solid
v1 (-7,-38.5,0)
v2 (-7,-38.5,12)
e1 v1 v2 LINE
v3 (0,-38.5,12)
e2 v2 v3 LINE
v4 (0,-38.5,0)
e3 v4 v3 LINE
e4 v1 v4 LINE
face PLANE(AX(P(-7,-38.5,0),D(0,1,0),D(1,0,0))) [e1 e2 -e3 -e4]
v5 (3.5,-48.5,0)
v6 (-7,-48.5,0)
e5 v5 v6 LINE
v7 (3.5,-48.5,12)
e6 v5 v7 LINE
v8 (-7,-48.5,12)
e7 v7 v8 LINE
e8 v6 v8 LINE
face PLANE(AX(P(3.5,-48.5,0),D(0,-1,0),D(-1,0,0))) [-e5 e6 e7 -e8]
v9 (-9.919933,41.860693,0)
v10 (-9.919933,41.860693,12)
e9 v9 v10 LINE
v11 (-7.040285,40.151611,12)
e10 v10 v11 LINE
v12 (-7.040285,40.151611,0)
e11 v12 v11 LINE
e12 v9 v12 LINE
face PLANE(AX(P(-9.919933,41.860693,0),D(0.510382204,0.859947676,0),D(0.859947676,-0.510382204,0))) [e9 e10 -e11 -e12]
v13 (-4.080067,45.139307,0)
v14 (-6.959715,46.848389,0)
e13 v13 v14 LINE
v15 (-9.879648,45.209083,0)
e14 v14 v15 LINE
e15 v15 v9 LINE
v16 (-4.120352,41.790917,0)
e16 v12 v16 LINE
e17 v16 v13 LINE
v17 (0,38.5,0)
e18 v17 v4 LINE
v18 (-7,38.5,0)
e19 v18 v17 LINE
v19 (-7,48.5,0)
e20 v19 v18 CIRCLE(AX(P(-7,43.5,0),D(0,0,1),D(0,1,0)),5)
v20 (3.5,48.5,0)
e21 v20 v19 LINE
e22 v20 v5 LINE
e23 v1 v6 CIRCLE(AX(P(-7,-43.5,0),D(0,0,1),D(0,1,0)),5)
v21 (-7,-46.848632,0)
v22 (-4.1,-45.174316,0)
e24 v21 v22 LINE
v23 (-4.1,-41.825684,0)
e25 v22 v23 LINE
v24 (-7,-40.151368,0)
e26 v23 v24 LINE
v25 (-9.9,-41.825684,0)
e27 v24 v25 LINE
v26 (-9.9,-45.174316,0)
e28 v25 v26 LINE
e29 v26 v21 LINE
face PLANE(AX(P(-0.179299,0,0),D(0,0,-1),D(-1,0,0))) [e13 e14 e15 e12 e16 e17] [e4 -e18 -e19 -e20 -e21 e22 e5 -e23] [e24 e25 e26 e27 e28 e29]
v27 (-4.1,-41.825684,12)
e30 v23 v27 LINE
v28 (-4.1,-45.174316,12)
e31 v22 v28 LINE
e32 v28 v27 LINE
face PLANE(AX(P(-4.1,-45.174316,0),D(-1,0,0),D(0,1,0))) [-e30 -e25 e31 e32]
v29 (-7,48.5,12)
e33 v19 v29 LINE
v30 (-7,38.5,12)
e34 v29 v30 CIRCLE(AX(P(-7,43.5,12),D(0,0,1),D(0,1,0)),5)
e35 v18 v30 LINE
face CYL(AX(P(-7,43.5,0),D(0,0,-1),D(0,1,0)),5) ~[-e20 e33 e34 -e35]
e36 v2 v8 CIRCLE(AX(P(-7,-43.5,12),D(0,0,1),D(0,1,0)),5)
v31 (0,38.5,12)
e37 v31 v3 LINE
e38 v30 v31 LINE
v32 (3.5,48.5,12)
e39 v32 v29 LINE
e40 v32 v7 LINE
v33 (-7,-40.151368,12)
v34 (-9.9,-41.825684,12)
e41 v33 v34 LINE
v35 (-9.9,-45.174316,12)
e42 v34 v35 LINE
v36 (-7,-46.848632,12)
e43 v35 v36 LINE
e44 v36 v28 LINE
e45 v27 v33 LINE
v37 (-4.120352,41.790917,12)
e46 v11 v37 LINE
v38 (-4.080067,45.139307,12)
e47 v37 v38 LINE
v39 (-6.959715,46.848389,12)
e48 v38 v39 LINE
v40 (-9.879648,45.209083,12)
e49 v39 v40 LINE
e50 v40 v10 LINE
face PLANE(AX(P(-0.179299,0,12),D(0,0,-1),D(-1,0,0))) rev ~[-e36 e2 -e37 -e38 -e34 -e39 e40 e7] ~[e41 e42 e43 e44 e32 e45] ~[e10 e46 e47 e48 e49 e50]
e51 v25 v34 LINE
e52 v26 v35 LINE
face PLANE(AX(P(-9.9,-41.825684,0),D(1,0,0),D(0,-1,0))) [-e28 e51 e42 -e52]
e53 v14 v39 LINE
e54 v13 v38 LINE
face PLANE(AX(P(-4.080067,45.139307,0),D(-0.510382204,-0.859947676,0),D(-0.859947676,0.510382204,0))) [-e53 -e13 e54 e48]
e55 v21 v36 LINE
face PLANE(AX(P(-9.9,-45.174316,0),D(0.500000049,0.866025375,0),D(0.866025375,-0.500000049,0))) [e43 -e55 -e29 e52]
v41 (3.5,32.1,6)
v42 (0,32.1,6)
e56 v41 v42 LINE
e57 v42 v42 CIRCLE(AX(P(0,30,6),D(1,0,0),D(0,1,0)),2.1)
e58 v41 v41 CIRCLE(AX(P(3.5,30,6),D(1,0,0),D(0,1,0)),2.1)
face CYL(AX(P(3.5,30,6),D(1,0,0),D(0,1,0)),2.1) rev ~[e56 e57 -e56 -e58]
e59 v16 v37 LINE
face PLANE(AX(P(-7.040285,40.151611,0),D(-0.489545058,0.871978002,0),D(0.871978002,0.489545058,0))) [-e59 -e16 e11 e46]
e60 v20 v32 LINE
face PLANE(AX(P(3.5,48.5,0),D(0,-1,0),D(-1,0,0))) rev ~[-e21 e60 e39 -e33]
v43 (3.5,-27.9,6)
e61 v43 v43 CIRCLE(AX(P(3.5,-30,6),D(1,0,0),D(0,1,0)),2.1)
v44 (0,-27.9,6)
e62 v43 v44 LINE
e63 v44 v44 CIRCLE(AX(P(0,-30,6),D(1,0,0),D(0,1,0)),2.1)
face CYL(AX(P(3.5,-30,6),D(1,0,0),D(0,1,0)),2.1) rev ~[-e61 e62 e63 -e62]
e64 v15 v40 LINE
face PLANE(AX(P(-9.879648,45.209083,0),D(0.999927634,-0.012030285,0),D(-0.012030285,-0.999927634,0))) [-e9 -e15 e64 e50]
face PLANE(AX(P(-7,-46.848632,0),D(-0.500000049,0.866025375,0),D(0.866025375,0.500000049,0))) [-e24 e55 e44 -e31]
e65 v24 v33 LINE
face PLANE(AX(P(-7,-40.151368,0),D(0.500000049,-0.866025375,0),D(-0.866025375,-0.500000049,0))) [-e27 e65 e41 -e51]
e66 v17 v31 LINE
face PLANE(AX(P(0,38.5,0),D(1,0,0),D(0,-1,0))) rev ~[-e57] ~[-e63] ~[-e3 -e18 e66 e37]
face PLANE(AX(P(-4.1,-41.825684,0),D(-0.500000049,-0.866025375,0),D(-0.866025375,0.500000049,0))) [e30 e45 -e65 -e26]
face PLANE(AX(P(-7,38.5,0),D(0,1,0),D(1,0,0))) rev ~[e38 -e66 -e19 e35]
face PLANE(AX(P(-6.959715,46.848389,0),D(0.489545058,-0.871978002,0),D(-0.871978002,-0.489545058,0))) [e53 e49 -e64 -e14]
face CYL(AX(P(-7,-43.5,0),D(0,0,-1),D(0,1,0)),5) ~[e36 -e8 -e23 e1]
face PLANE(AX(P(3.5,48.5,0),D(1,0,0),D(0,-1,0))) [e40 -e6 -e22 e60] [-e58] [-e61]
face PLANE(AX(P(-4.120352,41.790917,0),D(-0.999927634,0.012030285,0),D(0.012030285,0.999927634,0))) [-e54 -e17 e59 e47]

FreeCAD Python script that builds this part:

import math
import FreeCAD as App
import Part
import Sketcher
from FreeCAD import Vector
Q = App.Units.Quantity


def add_polygon(sketch, points):
    """Adds a closed chain of lines whose ends are joined by coincident constraints."""
    first, n = sketch.GeometryCount, len(points)
    for a, b in zip(points, points[1:] + points[:1]):
        sketch.addGeometry(Part.LineSegment(App.Vector(*a, 0), App.Vector(*b, 0)), False)
    for i in range(n):
        sketch.addConstraint(Sketcher.Constraint("Coincident", first + i, 2, first + (i + 1) % n, 1))

doc = App.newDocument("Part")
body = doc.addObject("PartDesign::Body", "Body")

# Sketch on XY plane
sketch1 = doc.addObject("Sketcher::SketchObject", "Sketch")
body.addObject(sketch1)
sketch1.AttachmentSupport = (doc.XY_Plane, [""])
sketch1.MapMode = "FlatFace"
sketch1.addGeometry(Part.LineSegment(Vector(3.5, 48.5, 0), Vector(-7, 48.5, 0)), False)  # 0
sketch1.addGeometry(Part.ArcOfCircle(Part.Circle(Vector(-7, 43.5, 0), Vector(0, 0, 1), 5), math.radians(90), math.radians(270)), False)  # 1
sketch1.addGeometry(Part.LineSegment(Vector(-7, 38.5, 0), Vector(0, 38.5, 0)), False)  # 2
sketch1.addGeometry(Part.LineSegment(Vector(0, 38.5, 0), Vector(0, -38.5, 0)), False)  # 3
sketch1.addGeometry(Part.LineSegment(Vector(0, -38.5, 0), Vector(-7, -38.5, 0)), False)  # 4
sketch1.addGeometry(Part.ArcOfCircle(Part.Circle(Vector(-7, -43.5, 0), Vector(0, 0, 1), 5), math.radians(90), math.radians(270)), False)  # 5
sketch1.addGeometry(Part.LineSegment(Vector(-7, -48.5, 0), Vector(3.5, -48.5, 0)), False)  # 6
sketch1.addGeometry(Part.LineSegment(Vector(3.5, -48.5, 0), Vector(3.5, 48.5, 0)), False)  # 7
add_polygon(sketch1, [(-4.1, -45.174316), (-7, -46.848632), (-9.9, -45.174316), (-9.9, -41.825684), (-7, -40.151368), (-4.1, -41.825684)])  # lines 8-13
add_polygon(sketch1, [(-4.120352, 41.790917), (-7.040285, 40.151611), (-9.919933, 41.860693), (-9.879648, 45.209083), (-6.959715, 46.848389), (-4.080067, 45.139307)])  # lines 14-19
sketch1.addConstraint([
    Sketcher.Constraint("Coincident", 0, 2, 1, 1),
    Sketcher.Constraint("Coincident", 1, 2, 2, 1),
    Sketcher.Constraint("Coincident", 2, 2, 3, 1),
    Sketcher.Constraint("Coincident", 3, 2, 4, 1),
    Sketcher.Constraint("Coincident", 4, 2, 5, 1),
    Sketcher.Constraint("Coincident", 5, 2, 6, 1),
    Sketcher.Constraint("Coincident", 6, 2, 7, 1),
    Sketcher.Constraint("Coincident", 7, 2, 0, 1),
    Sketcher.Constraint("Horizontal", 0),
    Sketcher.Constraint("Horizontal", 2),
    Sketcher.Constraint("Vertical", 3),
    Sketcher.Constraint("Horizontal", 4),
    Sketcher.Constraint("Horizontal", 6),
    Sketcher.Constraint("Vertical", 7),
    Sketcher.Constraint("Vertical", 10),
    Sketcher.Constraint("Vertical", 13),
    Sketcher.Constraint("PointOnObject", 2, 2, -2),
    Sketcher.Constraint("Radius", 1, Q("5 mm")),
    Sketcher.Constraint("Radius", 5, Q("5 mm")),
    Sketcher.Constraint("DistanceX", 2, 1, 2, 2, Q("7 mm")),
    Sketcher.Constraint("DistanceX", 4, 2, 4, 1, Q("7 mm")),
    Sketcher.Constraint("DistanceY", 3, 2, 3, 1, Q("77 mm")),
    Sketcher.Constraint("DistanceX", 0, 2, 0, 1, Q("10.5 mm")),
    Sketcher.Constraint("DistanceX", 6, 1, 6, 2, Q("10.5 mm")),
    Sketcher.Constraint("DistanceX", 1, 3, -1, 1, Q("7 mm")),
    Sketcher.Constraint("DistanceX", 5, 3, -1, 1, Q("7 mm")),
    Sketcher.Constraint("DistanceX", 0, 2, -1, 1, Q("7 mm")),
    Sketcher.Constraint("DistanceX", 8, 2, -1, 1, Q("7 mm")),
    Sketcher.Constraint("DistanceX", 11, 2, -1, 1, Q("7 mm")),
    Sketcher.Constraint("DistanceY", -1, 1, 1, 3, Q("43.5 mm")),
    Sketcher.Constraint("DistanceX", 9, 2, -1, 1, Q("9.9 mm")),
    Sketcher.Constraint("DistanceX", 12, 2, -1, 1, Q("4.1 mm")),
    Sketcher.Constraint("DistanceY", 10, 1, 10, 2, Q("3.348632 mm")),
    Sketcher.Constraint("DistanceY", 13, 2, 13, 1, Q("3.348632 mm")),
    Sketcher.Constraint("Distance", 8, Q("3.348632 mm")),
    Sketcher.Constraint("Distance", 9, Q("3.348632 mm")),
    Sketcher.Constraint("Distance", 11, Q("3.348632 mm")),
    Sketcher.Constraint("Distance", 14, Q("3.348631 mm")),
    Sketcher.Constraint("Distance", 15, Q("3.348632 mm")),
    Sketcher.Constraint("Distance", 17, Q("3.348631 mm")),
    Sketcher.Constraint("Distance", 18, Q("3.348632 mm")),
    Sketcher.Constraint("DistanceY", -1, 1, 14, 2, Q("40.151611 mm")),
    Sketcher.Constraint("DistanceY", -1, 1, 17, 2, Q("46.848389 mm")),
    Sketcher.Constraint("DistanceX", 19, 2, -1, 1, Q("4.120352 mm")),
    Sketcher.Constraint("DistanceX", 15, 2, 14, 2, Q("2.879648 mm")),
    Sketcher.Constraint("DistanceY", 15, 2, 16, 2, Q("3.34839 mm")),
    Sketcher.Constraint("DistanceX", 15, 2, 17, 2, Q("2.960218 mm")),
    Sketcher.Constraint("DistanceX", 17, 2, 18, 2, Q("2.879648 mm")),
    Sketcher.Constraint("DistanceY", 19, 2, 18, 2, Q("3.34839 mm")),
    Sketcher.Constraint("DistanceY", 8, 2, -1, 1, Q("46.848632 mm")),
])
pad1 = doc.addObject("PartDesign::Pad", "Pad")
body.addObject(pad1)
pad1.Profile = sketch1
pad1.Length = 12

# Sketch on YZ plane
sketch2 = doc.addObject("Sketcher::SketchObject", "Sketch001")
body.addObject(sketch2)
sketch2.AttachmentSupport = (doc.YZ_Plane, [""])
sketch2.MapMode = "FlatFace"
sketch2.AttachmentOffset = App.Placement(Vector(0, 0, 3.5), App.Rotation())
sketch2.addGeometry([
    Part.Circle(Vector(-30, 6, 0), Vector(0, 0, 1), 2.1),
    Part.Circle(Vector(30, 6, 0), Vector(0, 0, 1), 2.1),
], False)
sketch2.addConstraint([
    Sketcher.Constraint("Equal", 0, 1),
    Sketcher.Constraint("Symmetric", 0, 3, 1, 3, -2),
    Sketcher.Constraint("Diameter", 0, Q("4.2 mm")),
    Sketcher.Constraint("DistanceX", 0, 3, -1, 1, Q("30 mm")),
    Sketcher.Constraint("DistanceY", -1, 1, 0, 3, Q("6 mm")),
])
pocket1 = doc.addObject("PartDesign::Pocket", "Pocket")
body.addObject(pocket1)
pocket1.Profile = sketch2
pocket1.Length = 5

doc.recompute()
